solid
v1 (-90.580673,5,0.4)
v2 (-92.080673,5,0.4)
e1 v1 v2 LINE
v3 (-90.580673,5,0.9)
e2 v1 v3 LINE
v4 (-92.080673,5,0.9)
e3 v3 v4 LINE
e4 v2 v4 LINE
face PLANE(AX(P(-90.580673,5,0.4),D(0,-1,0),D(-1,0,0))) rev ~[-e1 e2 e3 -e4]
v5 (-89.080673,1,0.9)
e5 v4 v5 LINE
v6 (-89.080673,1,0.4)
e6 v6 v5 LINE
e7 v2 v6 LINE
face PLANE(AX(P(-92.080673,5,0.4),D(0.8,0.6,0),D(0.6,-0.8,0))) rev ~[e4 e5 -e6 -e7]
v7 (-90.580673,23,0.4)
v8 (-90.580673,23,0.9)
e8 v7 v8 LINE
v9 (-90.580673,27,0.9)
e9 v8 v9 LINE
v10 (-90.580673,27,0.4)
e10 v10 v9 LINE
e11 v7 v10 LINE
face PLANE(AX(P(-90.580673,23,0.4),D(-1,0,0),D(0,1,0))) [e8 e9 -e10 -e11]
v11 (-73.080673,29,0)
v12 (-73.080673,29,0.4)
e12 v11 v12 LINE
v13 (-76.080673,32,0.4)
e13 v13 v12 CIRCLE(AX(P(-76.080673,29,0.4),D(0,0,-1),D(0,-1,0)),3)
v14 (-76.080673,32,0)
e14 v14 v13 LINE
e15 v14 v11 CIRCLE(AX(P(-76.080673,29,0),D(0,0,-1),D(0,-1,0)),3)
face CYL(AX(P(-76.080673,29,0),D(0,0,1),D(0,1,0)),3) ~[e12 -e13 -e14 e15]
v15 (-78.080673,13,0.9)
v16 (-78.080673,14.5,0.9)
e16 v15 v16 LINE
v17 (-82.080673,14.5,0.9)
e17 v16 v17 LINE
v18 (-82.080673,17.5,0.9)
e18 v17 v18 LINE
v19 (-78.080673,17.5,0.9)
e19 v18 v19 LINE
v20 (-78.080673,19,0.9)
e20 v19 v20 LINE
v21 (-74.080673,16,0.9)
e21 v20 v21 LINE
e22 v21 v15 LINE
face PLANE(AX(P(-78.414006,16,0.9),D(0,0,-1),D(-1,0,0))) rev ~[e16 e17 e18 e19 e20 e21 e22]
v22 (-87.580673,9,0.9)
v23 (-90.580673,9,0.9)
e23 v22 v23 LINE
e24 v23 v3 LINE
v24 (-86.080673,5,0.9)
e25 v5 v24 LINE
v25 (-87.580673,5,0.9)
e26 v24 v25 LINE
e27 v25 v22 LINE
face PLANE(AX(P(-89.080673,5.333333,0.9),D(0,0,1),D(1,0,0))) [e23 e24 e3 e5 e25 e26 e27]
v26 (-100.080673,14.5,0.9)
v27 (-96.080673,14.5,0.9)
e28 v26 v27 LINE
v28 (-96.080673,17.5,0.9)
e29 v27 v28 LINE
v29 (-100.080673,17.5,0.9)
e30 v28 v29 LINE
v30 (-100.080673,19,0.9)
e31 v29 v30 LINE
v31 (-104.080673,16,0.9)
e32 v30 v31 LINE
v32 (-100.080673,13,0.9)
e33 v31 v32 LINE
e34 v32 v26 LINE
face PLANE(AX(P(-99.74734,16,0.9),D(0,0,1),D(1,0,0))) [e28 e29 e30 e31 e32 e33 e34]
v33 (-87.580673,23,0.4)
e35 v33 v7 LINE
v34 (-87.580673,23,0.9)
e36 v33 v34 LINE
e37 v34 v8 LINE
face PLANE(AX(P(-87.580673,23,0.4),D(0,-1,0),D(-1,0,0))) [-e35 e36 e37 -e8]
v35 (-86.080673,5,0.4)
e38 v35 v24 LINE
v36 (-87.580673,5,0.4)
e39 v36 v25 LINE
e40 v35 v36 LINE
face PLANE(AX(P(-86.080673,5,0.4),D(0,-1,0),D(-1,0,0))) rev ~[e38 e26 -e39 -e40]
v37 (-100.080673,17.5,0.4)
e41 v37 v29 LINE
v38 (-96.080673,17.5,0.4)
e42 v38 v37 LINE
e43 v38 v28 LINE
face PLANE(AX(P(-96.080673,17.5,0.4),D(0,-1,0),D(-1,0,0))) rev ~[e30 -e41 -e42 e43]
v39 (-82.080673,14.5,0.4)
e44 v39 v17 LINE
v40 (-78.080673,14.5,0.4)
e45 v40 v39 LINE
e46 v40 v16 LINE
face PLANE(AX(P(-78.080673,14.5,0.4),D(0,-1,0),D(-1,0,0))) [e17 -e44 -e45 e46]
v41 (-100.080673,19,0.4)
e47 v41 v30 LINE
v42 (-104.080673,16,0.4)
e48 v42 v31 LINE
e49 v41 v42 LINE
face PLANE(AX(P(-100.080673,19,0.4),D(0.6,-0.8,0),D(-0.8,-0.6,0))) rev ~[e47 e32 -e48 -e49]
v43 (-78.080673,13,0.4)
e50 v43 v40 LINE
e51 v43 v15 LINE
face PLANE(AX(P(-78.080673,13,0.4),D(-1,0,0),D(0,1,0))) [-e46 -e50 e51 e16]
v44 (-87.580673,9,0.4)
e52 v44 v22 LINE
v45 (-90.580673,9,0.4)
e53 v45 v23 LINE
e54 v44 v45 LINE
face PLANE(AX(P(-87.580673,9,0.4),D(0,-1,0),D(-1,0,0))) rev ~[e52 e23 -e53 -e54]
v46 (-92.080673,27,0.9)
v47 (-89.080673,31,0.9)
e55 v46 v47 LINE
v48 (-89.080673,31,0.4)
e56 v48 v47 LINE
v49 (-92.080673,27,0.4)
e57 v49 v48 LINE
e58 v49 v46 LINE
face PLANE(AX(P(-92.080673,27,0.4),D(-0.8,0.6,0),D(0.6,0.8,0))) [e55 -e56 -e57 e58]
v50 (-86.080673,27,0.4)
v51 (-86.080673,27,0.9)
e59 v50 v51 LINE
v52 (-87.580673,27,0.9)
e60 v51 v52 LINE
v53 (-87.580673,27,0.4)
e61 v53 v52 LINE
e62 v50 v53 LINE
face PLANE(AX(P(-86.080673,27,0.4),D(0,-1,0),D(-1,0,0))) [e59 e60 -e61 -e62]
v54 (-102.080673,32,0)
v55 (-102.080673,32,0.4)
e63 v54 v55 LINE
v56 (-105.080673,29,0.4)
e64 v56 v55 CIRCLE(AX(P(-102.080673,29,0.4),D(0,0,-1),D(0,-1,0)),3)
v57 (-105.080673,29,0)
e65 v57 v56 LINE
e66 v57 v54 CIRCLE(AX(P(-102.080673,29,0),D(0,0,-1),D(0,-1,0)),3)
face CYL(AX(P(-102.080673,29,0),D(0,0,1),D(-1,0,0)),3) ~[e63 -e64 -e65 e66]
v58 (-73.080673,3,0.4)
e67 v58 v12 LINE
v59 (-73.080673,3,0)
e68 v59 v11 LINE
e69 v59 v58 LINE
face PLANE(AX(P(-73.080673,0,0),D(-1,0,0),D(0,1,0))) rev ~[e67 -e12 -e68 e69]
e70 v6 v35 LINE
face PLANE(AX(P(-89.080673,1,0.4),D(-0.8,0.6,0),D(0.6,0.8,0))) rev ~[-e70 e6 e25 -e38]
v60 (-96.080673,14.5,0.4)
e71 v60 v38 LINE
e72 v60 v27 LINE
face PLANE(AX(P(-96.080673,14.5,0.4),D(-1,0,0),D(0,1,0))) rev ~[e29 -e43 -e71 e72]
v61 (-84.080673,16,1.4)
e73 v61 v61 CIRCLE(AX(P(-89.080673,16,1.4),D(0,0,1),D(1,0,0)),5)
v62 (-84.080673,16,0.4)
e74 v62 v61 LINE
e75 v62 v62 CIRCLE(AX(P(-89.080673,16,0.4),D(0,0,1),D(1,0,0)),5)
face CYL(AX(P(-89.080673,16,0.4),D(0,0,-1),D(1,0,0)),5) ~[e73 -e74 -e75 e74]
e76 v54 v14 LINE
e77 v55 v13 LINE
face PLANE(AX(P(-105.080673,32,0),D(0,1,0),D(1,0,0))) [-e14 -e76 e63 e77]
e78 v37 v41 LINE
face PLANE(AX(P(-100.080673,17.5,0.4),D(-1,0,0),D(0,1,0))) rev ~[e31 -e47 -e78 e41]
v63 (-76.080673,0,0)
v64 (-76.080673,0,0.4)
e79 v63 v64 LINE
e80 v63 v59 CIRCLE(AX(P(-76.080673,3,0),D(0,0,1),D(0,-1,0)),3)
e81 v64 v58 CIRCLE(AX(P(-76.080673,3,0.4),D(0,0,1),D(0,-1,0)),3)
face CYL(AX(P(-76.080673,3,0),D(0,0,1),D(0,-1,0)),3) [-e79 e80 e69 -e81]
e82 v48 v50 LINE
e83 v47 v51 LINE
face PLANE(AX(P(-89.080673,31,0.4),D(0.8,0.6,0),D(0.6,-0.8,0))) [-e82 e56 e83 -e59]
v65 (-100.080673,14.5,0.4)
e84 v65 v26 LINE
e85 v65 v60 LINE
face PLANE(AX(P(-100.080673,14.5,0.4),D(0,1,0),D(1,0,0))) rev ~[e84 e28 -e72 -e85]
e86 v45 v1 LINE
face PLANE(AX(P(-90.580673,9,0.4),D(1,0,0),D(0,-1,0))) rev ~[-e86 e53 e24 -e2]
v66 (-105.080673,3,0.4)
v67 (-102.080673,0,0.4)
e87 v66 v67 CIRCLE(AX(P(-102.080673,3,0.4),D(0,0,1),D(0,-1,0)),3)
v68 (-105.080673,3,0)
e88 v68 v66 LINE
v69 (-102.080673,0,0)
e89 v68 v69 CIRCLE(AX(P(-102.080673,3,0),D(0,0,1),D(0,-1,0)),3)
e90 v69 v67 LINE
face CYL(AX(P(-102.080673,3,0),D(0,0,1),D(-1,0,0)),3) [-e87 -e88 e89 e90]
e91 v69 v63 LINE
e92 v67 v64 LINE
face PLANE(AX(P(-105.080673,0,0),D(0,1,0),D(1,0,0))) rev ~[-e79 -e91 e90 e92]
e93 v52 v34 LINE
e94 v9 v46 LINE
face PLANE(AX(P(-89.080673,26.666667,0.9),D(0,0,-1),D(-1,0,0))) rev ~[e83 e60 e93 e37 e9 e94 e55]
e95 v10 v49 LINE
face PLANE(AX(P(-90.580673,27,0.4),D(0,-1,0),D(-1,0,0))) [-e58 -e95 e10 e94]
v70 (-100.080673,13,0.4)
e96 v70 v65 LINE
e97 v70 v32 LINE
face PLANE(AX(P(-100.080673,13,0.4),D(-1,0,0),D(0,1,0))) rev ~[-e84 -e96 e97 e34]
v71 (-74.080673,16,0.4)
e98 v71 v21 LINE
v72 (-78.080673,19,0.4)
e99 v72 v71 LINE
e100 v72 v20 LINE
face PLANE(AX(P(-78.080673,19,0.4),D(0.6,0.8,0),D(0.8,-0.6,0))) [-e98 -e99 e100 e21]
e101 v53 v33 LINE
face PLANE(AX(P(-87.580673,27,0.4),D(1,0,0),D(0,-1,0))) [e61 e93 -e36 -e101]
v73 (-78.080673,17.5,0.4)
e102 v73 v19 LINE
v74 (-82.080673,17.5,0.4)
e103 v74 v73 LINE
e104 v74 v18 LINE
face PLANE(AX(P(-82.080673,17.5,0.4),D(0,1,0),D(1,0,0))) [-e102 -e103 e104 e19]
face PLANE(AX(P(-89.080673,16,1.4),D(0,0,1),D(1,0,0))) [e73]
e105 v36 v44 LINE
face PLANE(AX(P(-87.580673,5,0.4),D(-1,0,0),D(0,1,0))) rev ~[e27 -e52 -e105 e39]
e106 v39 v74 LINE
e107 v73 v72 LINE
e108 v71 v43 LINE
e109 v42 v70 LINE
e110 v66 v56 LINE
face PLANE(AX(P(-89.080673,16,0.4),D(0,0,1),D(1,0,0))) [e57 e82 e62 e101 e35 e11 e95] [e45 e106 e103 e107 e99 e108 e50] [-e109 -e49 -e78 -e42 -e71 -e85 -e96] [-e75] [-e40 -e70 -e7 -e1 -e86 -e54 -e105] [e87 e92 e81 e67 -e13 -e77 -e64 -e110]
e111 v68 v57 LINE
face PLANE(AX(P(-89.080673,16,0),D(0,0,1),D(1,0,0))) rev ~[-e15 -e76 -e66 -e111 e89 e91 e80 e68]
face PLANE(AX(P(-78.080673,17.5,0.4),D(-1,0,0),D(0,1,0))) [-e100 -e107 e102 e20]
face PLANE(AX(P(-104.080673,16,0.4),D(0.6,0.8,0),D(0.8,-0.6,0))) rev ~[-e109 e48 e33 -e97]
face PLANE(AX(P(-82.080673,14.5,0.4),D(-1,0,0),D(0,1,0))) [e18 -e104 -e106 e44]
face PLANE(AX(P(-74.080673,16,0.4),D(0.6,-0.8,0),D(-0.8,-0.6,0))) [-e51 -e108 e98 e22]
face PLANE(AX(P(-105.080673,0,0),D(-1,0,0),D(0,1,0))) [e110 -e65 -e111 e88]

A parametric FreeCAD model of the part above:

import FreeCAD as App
import Part
import Sketcher

V = App.Vector


def edges_at(feature, points):
    """Names of the edges that pass closest to the given points."""
    edges = feature.Shape.Edges
    near = lambda p: min(range(len(edges)), key=lambda i: edges[i].distToShape(Part.Vertex(*p))[0])
    return sorted({f"Edge{near(p) + 1}" for p in points})


def add_polygon(sketch, points):
    """Adds a closed chain of lines whose ends are joined by coincident constraints."""
    first, n = sketch.GeometryCount, len(points)
    for a, b in zip(points, points[1:] + points[:1]):
        sketch.addGeometry(Part.LineSegment(App.Vector(*a, 0), App.Vector(*b, 0)), False)
    for i in range(n):
        sketch.addConstraint(Sketcher.Constraint("Coincident", first + i, 2, first + (i + 1) % n, 1))

doc = App.newDocument("Part")
body = doc.addObject("PartDesign::Body", "Body")

# Sketch on XY plane
sketch1 = body.newObject("Sketcher::SketchObject", "Sketch")
sketch1.AttachmentSupport = (doc.getObject("XY_Plane"), [""])
sketch1.MapMode = "FlatFace"
add_polygon(sketch1, [(-105, 32), (-105, 0), (-73, 0), (-73, 32)])  # lines 0-3
sketch1.addConstraint(Sketcher.Constraint("Vertical", 0))
sketch1.addConstraint(Sketcher.Constraint("Horizontal", 1))
sketch1.addConstraint(Sketcher.Constraint("Vertical", 2))
sketch1.addConstraint(Sketcher.Constraint("Horizontal", 3))
sketch1.addConstraint(Sketcher.Constraint("PointOnObject", 0, 2, -1))
sketch1.addConstraint(Sketcher.Constraint("Equal", 3, 0))
sketch1.addConstraint(Sketcher.Constraint("DistanceX", 1, 1, 1, 2, 32.0))
sketch1.addConstraint(Sketcher.Constraint("DistanceX", 0, 2, -1, 1, 105.080673))
pad1 = body.newObject("PartDesign::Pad", "Pad")
pad1.Profile = sketch1
pad1.Length = 0.4

# Sketch on XY plane
sketch2 = body.newObject("Sketcher::SketchObject", "Sketch001")
sketch2.AttachmentSupport = (doc.getObject("XY_Plane"), [""])
sketch2.MapMode = "FlatFace"
sketch2.AttachmentOffset = App.Placement(V(0, 0, 0.4), App.Rotation())
add_polygon(sketch2, [(-86.1, 27), (-89.1, 31), (-92.1, 27), (-90.6, 27), (-90.6, 23), (-87.6, 23), (-87.6, 27)])  # lines 0-6
add_polygon(sketch2, [(-89.1, 1), (-86.1, 5), (-87.6, 5), (-87.6, 9), (-90.6, 9), (-90.6, 5), (-92.1, 5)])  # lines 7-13
sketch2.addConstraint(Sketcher.Constraint("Horizontal", 2))
sketch2.addConstraint(Sketcher.Constraint("Vertical", 3))
sketch2.addConstraint(Sketcher.Constraint("Horizontal", 4))
sketch2.addConstraint(Sketcher.Constraint("Vertical", 5))
sketch2.addConstraint(Sketcher.Constraint("Horizontal", 6))
sketch2.addConstraint(Sketcher.Constraint("Horizontal", 8))
sketch2.addConstraint(Sketcher.Constraint("Vertical", 9))
sketch2.addConstraint(Sketcher.Constraint("Horizontal", 10))
sketch2.addConstraint(Sketcher.Constraint("Vertical", 11))
sketch2.addConstraint(Sketcher.Constraint("Horizontal", 12))
sketch2.addConstraint(Sketcher.Constraint("Parallel", 1, 7))
sketch2.addConstraint(Sketcher.Constraint("Parallel", 0, 13))
sketch2.addConstraint(Sketcher.Constraint("Horizontal", 2, 2, 5, 2))
sketch2.addConstraint(Sketcher.Constraint("Horizontal", 8, 2, 11, 2))
sketch2.addConstraint(Sketcher.Constraint("Vertical", 6, 2, 7, 2))
sketch2.addConstraint(Sketcher.Constraint("Vertical", 5, 2, 8, 2))
sketch2.addConstraint(Sketcher.Constraint("Vertical", 3, 2, 10, 2))
sketch2.addConstraint(Sketcher.Constraint("Vertical", 1, 2, 12, 2))
sketch2.addConstraint(Sketcher.Constraint("Vertical", 0, 2, 13, 2))
sketch2.addConstraint(Sketcher.Constraint("Equal", 2, 6))
sketch2.addConstraint(Sketcher.Constraint("Equal", 5, 9))
sketch2.addConstraint(Sketcher.Constraint("DistanceX", 4, 1, 4, 2, 3.0))
sketch2.addConstraint(Sketcher.Constraint("DistanceY", 3, 2, 3, 1, 4.0))
sketch2.addConstraint(Sketcher.Constraint("Distance", 0, 5.0))
sketch2.addConstraint(Sketcher.Constraint("DistanceX", 2, 1, 2, 2, 1.5))
sketch2.addConstraint(Sketcher.Constraint("DistanceY", -1, 1, 0, 2, 31.0))
sketch2.addConstraint(Sketcher.Constraint("DistanceY", -1, 1, 7, 2, 5.0))
sketch2.addConstraint(Sketcher.Constraint("DistanceX", 0, 2, -1, 1, 89.080673))
pad2 = body.newObject("PartDesign::Pad", "Pad001")
pad2.Profile = sketch2
pad2.Length = 0.5

# Sketch on XY plane
sketch3 = body.newObject("Sketcher::SketchObject", "Sketch002")
sketch3.AttachmentSupport = (doc.getObject("XY_Plane"), [""])
sketch3.MapMode = "FlatFace"
sketch3.AttachmentOffset = App.Placement(V(0, 0, 0.4), App.Rotation())
add_polygon(sketch3, [(-78.1, 13), (-74.1, 16), (-78.1, 19), (-78.1, 17.5), (-82.1, 17.5), (-82.1, 14.5), (-78.1, 14.5)])  # lines 0-6
add_polygon(sketch3, [(-104.1, 16), (-100.1, 13), (-100.1, 14.5), (-96.1, 14.5), (-96.1, 17.5), (-100.1, 17.5), (-100.1, 19)])  # lines 7-13
sketch3.addConstraint(Sketcher.Constraint("Vertical", 2))
sketch3.addConstraint(Sketcher.Constraint("Horizontal", 3))
sketch3.addConstraint(Sketcher.Constraint("Vertical", 4))
sketch3.addConstraint(Sketcher.Constraint("Horizontal", 5))
sketch3.addConstraint(Sketcher.Constraint("Vertical", 6))
sketch3.addConstraint(Sketcher.Constraint("Vertical", 8))
sketch3.addConstraint(Sketcher.Constraint("Horizontal", 9))
sketch3.addConstraint(Sketcher.Constraint("Vertical", 10))
sketch3.addConstraint(Sketcher.Constraint("Horizontal", 11))
sketch3.addConstraint(Sketcher.Constraint("Vertical", 12))
sketch3.addConstraint(Sketcher.Constraint("Parallel", 1, 7))
sketch3.addConstraint(Sketcher.Constraint("Parallel", 0, 13))
sketch3.addConstraint(Sketcher.Constraint("Horizontal", 6, 2, 7, 2))
sketch3.addConstraint(Sketcher.Constraint("Horizontal", 5, 2, 8, 2))
sketch3.addConstraint(Sketcher.Constraint("Horizontal", 3, 2, 10, 2))
sketch3.addConstraint(Sketcher.Constraint("Horizontal", 1, 2, 12, 2))
sketch3.addConstraint(Sketcher.Constraint("Horizontal", 0, 2, 13, 2))
sketch3.addConstraint(Sketcher.Constraint("Vertical", 2, 2, 5, 2))
sketch3.addConstraint(Sketcher.Constraint("Vertical", 8, 2, 11, 2))
sketch3.addConstraint(Sketcher.Constraint("Equal", 5, 9))
sketch3.addConstraint(Sketcher.Constraint("Equal", 2, 6))
sketch3.addConstraint(Sketcher.Constraint("DistanceX", 3, 2, 3, 1, 4.0))
sketch3.addConstraint(Sketcher.Constraint("DistanceY", 4, 2, 4, 1, 3.0))
sketch3.addConstraint(Sketcher.Constraint("Distance", 0, 5.0))
sketch3.addConstraint(Sketcher.Constraint("DistanceY", 2, 2, 2, 1, 1.5))
sketch3.addConstraint(Sketcher.Constraint("DistanceY", -1, 1, 0, 2, 16.0))
sketch3.addConstraint(Sketcher.Constraint("DistanceX", 7, 2, 4, 2, 18.0))
sketch3.addConstraint(Sketcher.Constraint("DistanceX", 0, 2, -1, 1, 74.080673))
pad3 = body.newObject("PartDesign::Pad", "Pad002")
pad3.Profile = sketch3
pad3.Length = 0.5

# Sketch on XY plane
sketch4 = body.newObject("Sketcher::SketchObject", "Sketch003")
sketch4.AttachmentSupport = (doc.getObject("XY_Plane"), [""])
sketch4.MapMode = "FlatFace"
sketch4.AttachmentOffset = App.Placement(V(0, 0, 0.4), App.Rotation())
sketch4.addGeometry(Part.Circle(V(-89, 16, 0), V(0, 0, 1), 5), False)
sketch4.addConstraint(Sketcher.Constraint("Diameter", 0, 10.0))
sketch4.addConstraint(Sketcher.Constraint("DistanceY", -1, 1, 0, 3, 16.0))
sketch4.addConstraint(Sketcher.Constraint("DistanceX", 0, 3, -1, 1, 89.080673))
pad4 = body.newObject("PartDesign::Pad", "Pad003")
pad4.Profile = sketch4
pad4.Length = 1
doc.recompute()

fillet = body.newObject("PartDesign::Fillet", "Fillet")
fillet.Base = (pad4, edges_at(pad4, [
    (-105.081, 0, 0.2),
    (-105.081, 32, 0.2),
    (-73.081, 32, 0.2),
    (-73.081, 0, 0.2),
]))
fillet.Radius = 3

doc.recompute()
